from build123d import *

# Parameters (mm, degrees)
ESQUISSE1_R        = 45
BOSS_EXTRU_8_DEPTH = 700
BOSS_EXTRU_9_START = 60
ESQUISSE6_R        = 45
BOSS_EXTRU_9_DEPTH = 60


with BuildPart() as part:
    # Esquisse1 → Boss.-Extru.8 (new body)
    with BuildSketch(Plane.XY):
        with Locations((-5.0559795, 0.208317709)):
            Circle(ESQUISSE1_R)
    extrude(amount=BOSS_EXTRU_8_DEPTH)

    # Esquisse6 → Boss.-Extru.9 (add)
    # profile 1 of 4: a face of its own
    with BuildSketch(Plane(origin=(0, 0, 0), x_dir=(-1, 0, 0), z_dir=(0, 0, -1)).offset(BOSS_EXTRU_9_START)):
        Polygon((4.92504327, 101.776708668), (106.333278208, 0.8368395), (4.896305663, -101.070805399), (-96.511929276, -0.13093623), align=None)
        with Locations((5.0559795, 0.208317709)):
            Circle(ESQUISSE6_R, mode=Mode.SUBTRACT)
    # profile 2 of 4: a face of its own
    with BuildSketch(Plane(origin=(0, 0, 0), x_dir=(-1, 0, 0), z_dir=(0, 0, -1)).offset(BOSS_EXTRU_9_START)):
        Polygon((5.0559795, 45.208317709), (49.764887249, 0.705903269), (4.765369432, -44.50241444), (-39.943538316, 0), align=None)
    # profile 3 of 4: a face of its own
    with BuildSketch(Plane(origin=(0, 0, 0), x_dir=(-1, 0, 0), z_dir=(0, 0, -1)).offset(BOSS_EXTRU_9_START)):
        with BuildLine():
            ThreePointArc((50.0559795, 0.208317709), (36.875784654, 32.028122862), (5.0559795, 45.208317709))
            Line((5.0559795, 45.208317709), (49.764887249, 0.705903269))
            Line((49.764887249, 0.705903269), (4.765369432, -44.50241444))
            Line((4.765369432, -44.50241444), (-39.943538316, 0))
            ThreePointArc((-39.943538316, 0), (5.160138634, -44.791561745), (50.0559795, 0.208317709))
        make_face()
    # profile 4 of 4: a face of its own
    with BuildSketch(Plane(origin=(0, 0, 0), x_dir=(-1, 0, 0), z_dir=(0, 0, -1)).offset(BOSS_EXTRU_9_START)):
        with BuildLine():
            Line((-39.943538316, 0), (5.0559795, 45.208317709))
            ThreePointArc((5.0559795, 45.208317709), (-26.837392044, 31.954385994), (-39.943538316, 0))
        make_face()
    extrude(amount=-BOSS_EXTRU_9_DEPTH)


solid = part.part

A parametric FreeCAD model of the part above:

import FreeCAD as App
import Part
import Sketcher

V = App.Vector


def add_polygon(sketch, points):
    """Adds a closed chain of lines whose ends are joined by coincident constraints."""
    first, n = sketch.GeometryCount, len(points)
    for a, b in zip(points, points[1:] + points[:1]):
        sketch.addGeometry(Part.LineSegment(App.Vector(*a, 0), App.Vector(*b, 0)), False)
    for i in range(n):
        sketch.addConstraint(Sketcher.Constraint("Coincident", first + i, 2, first + (i + 1) % n, 1))

doc = App.newDocument("Part")
body = doc.addObject("PartDesign::Body", "Body")

sketch1 = doc.addObject("Sketcher::SketchObject", "Sketch")
body.addObject(sketch1)
sketch1.AttachmentSupport = (doc.XY_Plane, [""])
sketch1.MapMode = "FlatFace"
sketch1.addGeometry(Part.Circle(V(-5, 0, 0), V(0, 0, 1), 45), False)
sketch1.addConstraint([
    Sketcher.Constraint("Diameter", 0, 90.0),
    Sketcher.Constraint("DistanceX", 0, 3, -1, 1, 5.05598),
    Sketcher.Constraint("DistanceY", -1, 1, 0, 3, 0.208318),
])
pad1 = doc.addObject("PartDesign::Pad", "Pad")
body.addObject(pad1)
pad1.Profile = sketch1
pad1.Length = 700

sketch2 = doc.addObject("Sketcher::SketchObject", "Sketch001")
body.addObject(sketch2)
sketch2.AttachmentSupport = (doc.XY_Plane, [""])
sketch2.MapMode = "FlatFace"
sketch2.AttachmentOffset = App.Placement(V(0, 0, -60), App.Rotation())
add_polygon(sketch2, [(-106, 1), (-5, 102), (97, 0), (-5, -101)])
sketch2.addConstraint([
    Sketcher.Constraint("Perpendicular", 0, 1),
    Sketcher.Constraint("Perpendicular", 1, 2),
    Sketcher.Constraint("Perpendicular", 2, 3),
    Sketcher.Constraint("Distance", 0, 143.0821),
    Sketcher.Constraint("DistanceY", -1, 1, 0, 2, 101.776709),
    Sketcher.Constraint("DistanceX", -1, 1, 1, 2, 96.511929),
    Sketcher.Constraint("DistanceX", 3, 2, -1, 1, 106.333278),
    Sketcher.Constraint("DistanceY", -1, 1, 3, 2, 0.836839),
])
pad2 = doc.addObject("PartDesign::Pad", "Pad001")
body.addObject(pad2)
pad2.Profile = sketch2
pad2.Length = 60

doc.recompute()
